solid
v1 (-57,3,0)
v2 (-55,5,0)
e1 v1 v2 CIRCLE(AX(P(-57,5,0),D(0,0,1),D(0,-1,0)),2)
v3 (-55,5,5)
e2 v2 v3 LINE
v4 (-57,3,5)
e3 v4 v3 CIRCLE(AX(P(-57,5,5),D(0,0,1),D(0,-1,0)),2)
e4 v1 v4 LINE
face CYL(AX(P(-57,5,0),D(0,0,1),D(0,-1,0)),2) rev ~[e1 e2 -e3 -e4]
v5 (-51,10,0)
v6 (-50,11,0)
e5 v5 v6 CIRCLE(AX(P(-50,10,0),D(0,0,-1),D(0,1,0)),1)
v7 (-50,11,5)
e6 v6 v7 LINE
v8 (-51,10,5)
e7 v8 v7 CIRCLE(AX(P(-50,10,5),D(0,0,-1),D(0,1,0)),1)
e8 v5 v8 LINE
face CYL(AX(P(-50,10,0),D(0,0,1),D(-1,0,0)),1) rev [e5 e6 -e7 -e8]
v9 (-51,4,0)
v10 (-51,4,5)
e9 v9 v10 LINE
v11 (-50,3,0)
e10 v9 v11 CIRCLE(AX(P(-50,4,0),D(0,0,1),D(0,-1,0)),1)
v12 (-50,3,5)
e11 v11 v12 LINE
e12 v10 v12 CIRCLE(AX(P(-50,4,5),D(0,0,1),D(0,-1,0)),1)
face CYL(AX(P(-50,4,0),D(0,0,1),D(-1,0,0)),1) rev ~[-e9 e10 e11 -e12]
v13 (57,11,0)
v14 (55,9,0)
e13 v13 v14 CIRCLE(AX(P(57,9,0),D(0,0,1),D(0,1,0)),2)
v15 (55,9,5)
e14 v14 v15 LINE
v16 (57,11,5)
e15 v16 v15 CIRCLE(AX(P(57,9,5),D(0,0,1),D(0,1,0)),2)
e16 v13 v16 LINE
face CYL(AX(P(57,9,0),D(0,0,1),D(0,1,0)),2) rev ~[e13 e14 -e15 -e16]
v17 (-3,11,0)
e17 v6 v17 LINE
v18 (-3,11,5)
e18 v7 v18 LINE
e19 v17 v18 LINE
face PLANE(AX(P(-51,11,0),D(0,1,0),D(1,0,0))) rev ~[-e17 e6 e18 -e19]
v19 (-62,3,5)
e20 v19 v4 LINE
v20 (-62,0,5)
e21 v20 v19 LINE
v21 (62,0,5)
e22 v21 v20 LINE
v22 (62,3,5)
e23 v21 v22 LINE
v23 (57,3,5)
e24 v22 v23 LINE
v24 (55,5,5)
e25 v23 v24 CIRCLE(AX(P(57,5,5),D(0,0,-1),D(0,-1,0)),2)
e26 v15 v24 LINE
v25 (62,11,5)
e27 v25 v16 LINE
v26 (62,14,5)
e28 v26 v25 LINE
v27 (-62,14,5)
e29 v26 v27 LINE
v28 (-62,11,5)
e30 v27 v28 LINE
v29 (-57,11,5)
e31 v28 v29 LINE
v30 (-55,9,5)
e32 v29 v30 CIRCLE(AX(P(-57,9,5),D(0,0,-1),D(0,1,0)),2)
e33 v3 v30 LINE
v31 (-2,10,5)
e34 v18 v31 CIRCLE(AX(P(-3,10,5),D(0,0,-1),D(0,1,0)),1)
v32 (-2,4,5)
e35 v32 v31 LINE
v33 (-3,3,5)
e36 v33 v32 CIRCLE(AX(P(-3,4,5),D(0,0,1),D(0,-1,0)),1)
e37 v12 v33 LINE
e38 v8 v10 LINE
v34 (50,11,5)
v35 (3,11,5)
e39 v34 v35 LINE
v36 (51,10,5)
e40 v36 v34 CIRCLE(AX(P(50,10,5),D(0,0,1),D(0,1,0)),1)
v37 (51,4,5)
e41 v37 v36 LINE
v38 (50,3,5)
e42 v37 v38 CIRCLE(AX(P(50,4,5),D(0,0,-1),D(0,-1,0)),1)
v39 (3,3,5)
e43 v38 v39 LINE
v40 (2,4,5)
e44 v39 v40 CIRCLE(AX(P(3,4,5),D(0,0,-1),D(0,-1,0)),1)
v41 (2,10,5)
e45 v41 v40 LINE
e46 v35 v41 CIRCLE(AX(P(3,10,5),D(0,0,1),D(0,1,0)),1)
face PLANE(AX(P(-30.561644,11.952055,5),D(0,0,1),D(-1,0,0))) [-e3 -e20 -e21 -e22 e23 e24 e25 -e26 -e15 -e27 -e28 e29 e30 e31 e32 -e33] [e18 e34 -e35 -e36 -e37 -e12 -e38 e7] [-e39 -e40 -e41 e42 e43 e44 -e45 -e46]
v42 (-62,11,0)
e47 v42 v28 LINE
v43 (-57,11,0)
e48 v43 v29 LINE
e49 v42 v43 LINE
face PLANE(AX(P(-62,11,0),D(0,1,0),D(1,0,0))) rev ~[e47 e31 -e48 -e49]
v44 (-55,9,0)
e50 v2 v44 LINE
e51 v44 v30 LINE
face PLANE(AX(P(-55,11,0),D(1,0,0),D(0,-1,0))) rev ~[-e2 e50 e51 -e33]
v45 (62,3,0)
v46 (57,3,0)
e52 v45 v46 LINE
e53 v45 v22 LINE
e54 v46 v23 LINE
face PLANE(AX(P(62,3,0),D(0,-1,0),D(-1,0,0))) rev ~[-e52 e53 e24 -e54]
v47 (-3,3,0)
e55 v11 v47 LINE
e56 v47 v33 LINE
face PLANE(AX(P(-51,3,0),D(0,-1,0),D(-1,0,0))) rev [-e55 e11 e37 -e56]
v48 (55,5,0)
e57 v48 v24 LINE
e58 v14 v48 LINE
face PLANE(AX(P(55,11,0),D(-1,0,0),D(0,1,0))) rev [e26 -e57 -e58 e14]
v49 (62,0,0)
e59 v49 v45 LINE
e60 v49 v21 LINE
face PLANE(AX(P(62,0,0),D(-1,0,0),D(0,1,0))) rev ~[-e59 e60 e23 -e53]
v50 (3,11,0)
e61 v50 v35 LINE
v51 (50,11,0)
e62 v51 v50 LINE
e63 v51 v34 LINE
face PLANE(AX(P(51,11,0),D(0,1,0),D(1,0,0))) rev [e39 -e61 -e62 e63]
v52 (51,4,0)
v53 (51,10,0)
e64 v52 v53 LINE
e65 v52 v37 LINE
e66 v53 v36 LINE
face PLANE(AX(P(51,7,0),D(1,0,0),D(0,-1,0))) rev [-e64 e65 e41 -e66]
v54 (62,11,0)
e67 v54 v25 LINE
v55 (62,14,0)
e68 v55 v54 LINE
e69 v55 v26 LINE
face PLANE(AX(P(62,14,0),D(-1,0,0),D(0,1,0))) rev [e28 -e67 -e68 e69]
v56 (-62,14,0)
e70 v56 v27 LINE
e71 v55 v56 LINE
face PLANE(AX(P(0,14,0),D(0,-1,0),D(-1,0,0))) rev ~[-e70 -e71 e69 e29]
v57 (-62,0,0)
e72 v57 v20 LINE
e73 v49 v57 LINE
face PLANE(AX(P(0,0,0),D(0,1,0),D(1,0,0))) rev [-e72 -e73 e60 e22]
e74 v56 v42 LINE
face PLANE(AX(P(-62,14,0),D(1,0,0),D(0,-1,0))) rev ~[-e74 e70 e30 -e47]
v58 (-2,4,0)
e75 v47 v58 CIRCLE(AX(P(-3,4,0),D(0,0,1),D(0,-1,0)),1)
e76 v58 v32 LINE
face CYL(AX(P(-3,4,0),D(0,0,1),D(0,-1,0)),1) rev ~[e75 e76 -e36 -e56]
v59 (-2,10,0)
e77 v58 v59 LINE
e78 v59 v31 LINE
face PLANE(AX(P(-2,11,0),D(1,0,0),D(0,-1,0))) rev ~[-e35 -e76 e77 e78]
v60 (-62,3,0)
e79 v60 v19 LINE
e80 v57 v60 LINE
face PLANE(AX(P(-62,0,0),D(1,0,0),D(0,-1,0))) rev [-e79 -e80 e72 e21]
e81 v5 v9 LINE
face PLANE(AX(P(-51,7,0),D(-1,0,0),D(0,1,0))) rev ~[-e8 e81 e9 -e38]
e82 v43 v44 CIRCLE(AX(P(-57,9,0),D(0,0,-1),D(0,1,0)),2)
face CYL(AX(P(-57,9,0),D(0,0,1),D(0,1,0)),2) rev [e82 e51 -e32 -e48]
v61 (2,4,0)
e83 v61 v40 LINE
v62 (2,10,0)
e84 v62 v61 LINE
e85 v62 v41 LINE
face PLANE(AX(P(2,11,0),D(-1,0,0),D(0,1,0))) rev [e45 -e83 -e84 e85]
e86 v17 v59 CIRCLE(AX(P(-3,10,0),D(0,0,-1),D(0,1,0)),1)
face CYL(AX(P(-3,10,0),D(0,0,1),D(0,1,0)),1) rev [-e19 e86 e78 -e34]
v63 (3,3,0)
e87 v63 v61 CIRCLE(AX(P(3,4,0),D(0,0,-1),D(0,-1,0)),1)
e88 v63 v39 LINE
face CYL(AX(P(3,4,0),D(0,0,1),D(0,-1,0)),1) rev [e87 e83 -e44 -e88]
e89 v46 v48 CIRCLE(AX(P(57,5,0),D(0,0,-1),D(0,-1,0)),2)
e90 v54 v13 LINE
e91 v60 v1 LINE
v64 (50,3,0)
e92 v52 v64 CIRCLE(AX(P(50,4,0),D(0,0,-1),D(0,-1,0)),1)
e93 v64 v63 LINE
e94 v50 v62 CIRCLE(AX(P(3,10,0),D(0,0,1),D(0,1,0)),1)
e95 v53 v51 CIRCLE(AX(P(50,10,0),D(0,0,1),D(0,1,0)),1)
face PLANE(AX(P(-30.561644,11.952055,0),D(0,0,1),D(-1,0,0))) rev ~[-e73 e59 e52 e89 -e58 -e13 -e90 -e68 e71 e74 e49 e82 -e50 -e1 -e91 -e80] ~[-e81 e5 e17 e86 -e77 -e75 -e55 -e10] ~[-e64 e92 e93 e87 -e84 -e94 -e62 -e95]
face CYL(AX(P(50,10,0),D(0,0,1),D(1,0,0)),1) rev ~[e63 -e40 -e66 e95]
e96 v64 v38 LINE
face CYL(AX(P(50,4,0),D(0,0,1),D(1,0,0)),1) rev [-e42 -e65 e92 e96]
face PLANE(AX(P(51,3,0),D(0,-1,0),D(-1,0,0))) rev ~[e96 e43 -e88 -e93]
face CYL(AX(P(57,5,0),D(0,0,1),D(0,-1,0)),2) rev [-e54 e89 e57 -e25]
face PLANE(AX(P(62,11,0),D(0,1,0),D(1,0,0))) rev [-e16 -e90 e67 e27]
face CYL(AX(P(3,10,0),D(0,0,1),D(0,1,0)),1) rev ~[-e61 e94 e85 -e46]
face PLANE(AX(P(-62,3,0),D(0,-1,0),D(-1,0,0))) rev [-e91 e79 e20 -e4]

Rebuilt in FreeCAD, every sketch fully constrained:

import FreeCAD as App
import Part
import Sketcher
Q = App.Units.Quantity


def edges_at(feature, points):
    """Names of the edges that pass closest to the given points."""
    edges = feature.Shape.Edges
    near = lambda p: min(range(len(edges)), key=lambda i: edges[i].distToShape(Part.Vertex(*p))[0])
    return sorted({f"Edge{near(p) + 1}" for p in points})

doc = App.newDocument("Part")
params = doc.addObject("Spreadsheet::Sheet", "Params")
for row, (alias, value) in enumerate([
    ("sketch1_width", "62 mm"),
    ("sketch1_width2", "7 mm"),
    ("sketch1_width3", "4 mm"),
    ("sketch1_width4", "49 mm"),
    ("pad1_length", "5 mm"),
    ("fillet_radius", "2 mm"),
    ("fillet2_radius", "1 mm"),
], start=1):
    params.set(f"A{row}", alias)
    params.set(f"B{row}", "=" + value)
    params.setAlias(f"B{row}", alias)

body = doc.addObject("PartDesign::Body", "Body")

# Sketch on XY plane
sketch1 = doc.addObject("Sketcher::SketchObject", "Sketch")
body.addObject(sketch1)
sketch1.AttachmentSupport = (doc.XY_Plane, [""])
sketch1.MapMode = "FlatFace"
sketch1.addGeometry(Part.LineSegment(App.Vector(0, 0, 0), App.Vector(62, 0, 0)), False)
sketch1.addGeometry(Part.LineSegment(App.Vector(62, 0, 0), App.Vector(62, 3, 0)), False)
sketch1.addGeometry(Part.LineSegment(App.Vector(62, 3, 0), App.Vector(55, 3, 0)), False)
sketch1.addGeometry(Part.LineSegment(App.Vector(55, 3, 0), App.Vector(55, 7, 0)), False)
sketch1.addGeometry(Part.LineSegment(App.Vector(55, 7, 0), App.Vector(51, 7, 0)), False)
sketch1.addGeometry(Part.LineSegment(App.Vector(51, 7, 0), App.Vector(51, 3, 0)), False)
sketch1.addGeometry(Part.LineSegment(App.Vector(51, 3, 0), App.Vector(2, 3, 0)), False)
sketch1.addGeometry(Part.LineSegment(App.Vector(2, 3, 0), App.Vector(2, 7, 0)), False)
sketch1.addGeometry(Part.LineSegment(App.Vector(2, 7, 0), App.Vector(0, 7, 0)), False)
sketch1.addGeometry(Part.LineSegment(App.Vector(0, 7, 0), App.Vector(0, 0, 0)), False)
sketch1.addConstraint(Sketcher.Constraint("Coincident", 0, 2, 1, 1))
sketch1.addConstraint(Sketcher.Constraint("Coincident", 1, 2, 2, 1))
sketch1.addConstraint(Sketcher.Constraint("Coincident", 2, 2, 3, 1))
sketch1.addConstraint(Sketcher.Constraint("Coincident", 3, 2, 4, 1))
sketch1.addConstraint(Sketcher.Constraint("Coincident", 4, 2, 5, 1))
sketch1.addConstraint(Sketcher.Constraint("Coincident", 5, 2, 6, 1))
sketch1.addConstraint(Sketcher.Constraint("Coincident", 6, 2, 7, 1))
sketch1.addConstraint(Sketcher.Constraint("Coincident", 7, 2, 8, 1))
sketch1.addConstraint(Sketcher.Constraint("Coincident", 8, 2, 9, 1))
sketch1.addConstraint(Sketcher.Constraint("Coincident", 9, 2, 0, 1))
sketch1.addConstraint(Sketcher.Constraint("Horizontal", 0))
sketch1.addConstraint(Sketcher.Constraint("Vertical", 1))
sketch1.addConstraint(Sketcher.Constraint("Horizontal", 2))
sketch1.addConstraint(Sketcher.Constraint("Vertical", 3))
sketch1.addConstraint(Sketcher.Constraint("Horizontal", 4))
sketch1.addConstraint(Sketcher.Constraint("Vertical", 5))
sketch1.addConstraint(Sketcher.Constraint("Horizontal", 6))
sketch1.addConstraint(Sketcher.Constraint("Vertical", 7))
sketch1.addConstraint(Sketcher.Constraint("Horizontal", 8))
sketch1.addConstraint(Sketcher.Constraint("Vertical", 9))
sketch1.addConstraint(Sketcher.Constraint("Coincident", 9, 2, -1, 1))
sketch1.addConstraint(Sketcher.Constraint("Horizontal", 2, 2, 5, 2))
sketch1.addConstraint(Sketcher.Constraint("Horizontal", 4, 2, 7, 2))
sketch1.addConstraint(Sketcher.Constraint("Equal", 4, 3))
sketch1.addConstraint(Sketcher.Constraint("Equal", 2, 9))
sketch1.addConstraint(Sketcher.Constraint("DistanceX", 0, 1, 0, 2, Q("62 mm")))
sketch1.addConstraint(Sketcher.Constraint("DistanceX", 2, 2, 2, 1, Q("7 mm")))
sketch1.addConstraint(Sketcher.Constraint("DistanceX", 4, 2, 4, 1, Q("4 mm")))
sketch1.addConstraint(Sketcher.Constraint("DistanceX", 6, 2, 6, 1, Q("49 mm")))
sketch1.setExpression("Constraints[25]", "Params.sketch1_width")
sketch1.setExpression("Constraints[26]", "Params.sketch1_width2")
sketch1.setExpression("Constraints[27]", "Params.sketch1_width3")
sketch1.setExpression("Constraints[28]", "Params.sketch1_width4")
pad1 = doc.addObject("PartDesign::Pad", "Pad")
body.addObject(pad1)
pad1.Profile = sketch1
pad1.setExpression("Length", "Params.pad1_length")
doc.recompute()

fillet = doc.addObject("PartDesign::Fillet", "Fillet")
body.addObject(fillet)
fillet.Base = (pad1, edges_at(pad1, [(55, 3, 2.5)]))
fillet.setExpression("Radius", "Params.fillet_radius")
doc.recompute()

fillet2 = doc.addObject("PartDesign::Fillet", "Fillet001")
body.addObject(fillet2)
fillet2.Base = (fillet, edges_at(fillet, [(51, 3, 2.5), (2, 3, 2.5)]))
fillet2.setExpression("Radius", "Params.fillet2_radius")
body2 = doc.addObject("PartDesign::Body", "Body001")
doc.recompute()

body2.BaseFeature = body
doc.recompute()

mirroring = doc.addObject("Part::Mirroring", "Mirroring")
mirroring.Source = body
mirroring.Base = App.Vector(0, 3.5, 2.5)
mirroring.Normal = App.Vector(-1, 0, 0)
body3 = doc.addObject("PartDesign::Body", "Body002")
body3.BaseFeature = mirroring
boolean = doc.addObject("PartDesign::Boolean", "Boolean")
body2.addObject(boolean)
boolean.Type = "Fuse"
boolean.addObjects([body3])
doc.recompute()
body4 = doc.addObject("PartDesign::Body", "Body003")
doc.recompute()

body4.BaseFeature = body2
doc.recompute()

mirroring2 = doc.addObject("Part::Mirroring", "Mirroring001")
mirroring2.Source = body2
mirroring2.Base = App.Vector(0, 7, 2.5)
mirroring2.Normal = App.Vector(0, 1, 0)
body5 = doc.addObject("PartDesign::Body", "Body004")
body5.BaseFeature = mirroring2
boolean2 = doc.addObject("PartDesign::Boolean", "Boolean001")
body4.addObject(boolean2)
boolean2.Type = "Fuse"
boolean2.addObjects([body5])
doc.recompute()
mirroring.Visibility = False
mirroring2.Visibility = False

doc.recompute()
